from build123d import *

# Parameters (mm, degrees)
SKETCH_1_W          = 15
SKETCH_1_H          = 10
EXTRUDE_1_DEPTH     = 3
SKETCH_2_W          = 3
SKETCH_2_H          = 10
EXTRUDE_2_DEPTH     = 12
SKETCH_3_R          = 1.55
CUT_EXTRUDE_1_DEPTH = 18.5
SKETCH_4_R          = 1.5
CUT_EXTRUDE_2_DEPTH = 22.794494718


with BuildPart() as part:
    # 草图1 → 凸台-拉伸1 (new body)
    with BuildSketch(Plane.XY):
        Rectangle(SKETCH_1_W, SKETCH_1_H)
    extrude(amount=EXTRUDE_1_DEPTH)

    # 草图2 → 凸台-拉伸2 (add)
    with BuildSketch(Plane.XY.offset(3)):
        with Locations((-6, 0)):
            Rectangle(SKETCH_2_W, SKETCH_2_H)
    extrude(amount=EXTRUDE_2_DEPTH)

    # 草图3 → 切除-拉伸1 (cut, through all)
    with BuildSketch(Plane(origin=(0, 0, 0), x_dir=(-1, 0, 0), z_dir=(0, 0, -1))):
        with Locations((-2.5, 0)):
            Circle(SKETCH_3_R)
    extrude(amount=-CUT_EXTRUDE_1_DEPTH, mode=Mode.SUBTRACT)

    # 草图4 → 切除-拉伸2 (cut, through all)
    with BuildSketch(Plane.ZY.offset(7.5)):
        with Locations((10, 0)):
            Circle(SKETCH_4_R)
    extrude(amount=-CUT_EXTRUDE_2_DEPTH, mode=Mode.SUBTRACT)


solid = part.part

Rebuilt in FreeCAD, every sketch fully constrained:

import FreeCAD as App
import Part
import Sketcher

V = App.Vector

doc = App.newDocument("Part")
params = doc.addObject("Spreadsheet::Sheet", "Params")
for row, (alias, value) in enumerate([
    ("sketch1_width", "15 mm"),
    ("sketch1_height", "10 mm"),
    ("pad1_length", "3 mm"),
    ("sketch2_width", "3 mm"),
    ("sketch2_height", "10 mm"),
    ("pad2_length", "12 mm"),
    ("sketch3_diameter", "3.1 mm"),
    ("sketch4_diameter", "3 mm"),
], start=1):
    params.set(f"A{row}", alias)
    params.set(f"B{row}", "=" + value)
    params.setAlias(f"B{row}", alias)

body = doc.addObject("PartDesign::Body", "Body")

sketch1 = body.newObject("Sketcher::SketchObject", "Sketch")
sketch1.AttachmentSupport = (doc.getObject("XY_Plane"), [""])
sketch1.MapMode = "FlatFace"
sketch1.addGeometry([
    Part.LineSegment(V(-7.5, 5, 0), V(-7.5, -5, 0)),
    Part.LineSegment(V(-7.5, -5, 0), V(7.5, -5, 0)),
    Part.LineSegment(V(7.5, -5, 0), V(7.5, 5, 0)),
    Part.LineSegment(V(7.5, 5, 0), V(-7.5, 5, 0)),
], False)
sketch1.addConstraint([
    Sketcher.Constraint("Coincident", 0, 2, 1, 1),
    Sketcher.Constraint("Coincident", 1, 2, 2, 1),
    Sketcher.Constraint("Coincident", 2, 2, 3, 1),
    Sketcher.Constraint("Coincident", 3, 2, 0, 1),
    Sketcher.Constraint("Vertical", 0),
    Sketcher.Constraint("Horizontal", 1),
    Sketcher.Constraint("Vertical", 2),
    Sketcher.Constraint("Horizontal", 3),
    Sketcher.Constraint("Symmetric", 0, 2, 2, 2, -1, 1),
    Sketcher.Constraint("DistanceX", 1, 1, 1, 2, 15.0),
    Sketcher.Constraint("DistanceY", 0, 2, 0, 1, 10.0),
])
sketch1.setExpression("Constraints[9]", "Params.sketch1_width")
sketch1.setExpression("Constraints[10]", "Params.sketch1_height")
pad1 = body.newObject("PartDesign::Pad", "Pad")
pad1.Profile = sketch1
pad1.setExpression("Length", "Params.pad1_length")

sketch2 = body.newObject("Sketcher::SketchObject", "Sketch001")
sketch2.AttachmentSupport = (doc.getObject("XY_Plane"), [""])
sketch2.MapMode = "FlatFace"
sketch2.AttachmentOffset = App.Placement(V(0, 0, 3), App.Rotation())
sketch2.addGeometry([
    Part.LineSegment(V(-7.5, 5, 0), V(-7.5, -5, 0)),
    Part.LineSegment(V(-7.5, -5, 0), V(-4.5, -5, 0)),
    Part.LineSegment(V(-4.5, -5, 0), V(-4.5, 5, 0)),
    Part.LineSegment(V(-4.5, 5, 0), V(-7.5, 5, 0)),
], False)
sketch2.addConstraint([
    Sketcher.Constraint("Coincident", 0, 2, 1, 1),
    Sketcher.Constraint("Coincident", 1, 2, 2, 1),
    Sketcher.Constraint("Coincident", 2, 2, 3, 1),
    Sketcher.Constraint("Coincident", 3, 2, 0, 1),
    Sketcher.Constraint("Vertical", 0),
    Sketcher.Constraint("Horizontal", 1),
    Sketcher.Constraint("Vertical", 2),
    Sketcher.Constraint("Horizontal", 3),
    Sketcher.Constraint("DistanceX", 1, 1, 1, 2, 3.0),
    Sketcher.Constraint("DistanceY", 0, 2, 0, 1, 10.0),
    Sketcher.Constraint("DistanceY", 0, 2, -1, 1, 5.0),
    Sketcher.Constraint("DistanceX", 0, 2, -1, 1, 7.5),
])
sketch2.setExpression("Constraints[8]", "Params.sketch2_width")
sketch2.setExpression("Constraints[9]", "Params.sketch2_height")
pad2 = body.newObject("PartDesign::Pad", "Pad001")
pad2.Profile = sketch2
pad2.setExpression("Length", "Params.pad2_length")

sketch3 = body.newObject("Sketcher::SketchObject", "Sketch002")
sketch3.AttachmentSupport = (doc.getObject("XY_Plane"), [""])
sketch3.MapMode = "FlatFace"
sketch3.addGeometry(Part.Circle(V(2.5, 0, 0), V(0, 0, 1), 1.55), False)
sketch3.addConstraint([
    Sketcher.Constraint("PointOnObject", 0, 3, -1),
    Sketcher.Constraint("Diameter", 0, 3.1),
    Sketcher.Constraint("DistanceX", -1, 1, 0, 3, 2.5),
])
sketch3.setExpression("Constraints[1]", "Params.sketch3_diameter")
pocket1 = body.newObject("PartDesign::Pocket", "Pocket")
pocket1.Profile = sketch3
pocket1.Type = "ThroughAll"
pocket1.Reversed = True

sketch4 = body.newObject("Sketcher::SketchObject", "Sketch003")
sketch4.AttachmentSupport = (doc.getObject("YZ_Plane"), [""])
sketch4.MapMode = "FlatFace"
sketch4.AttachmentOffset = App.Placement(V(0, 0, -7.5), App.Rotation())
sketch4.addGeometry(Part.Circle(V(0, 10, 0), V(0, 0, 1), 1.5), False)
sketch4.addConstraint([
    Sketcher.Constraint("PointOnObject", 0, 3, -2),
    Sketcher.Constraint("Diameter", 0, 3.0),
    Sketcher.Constraint("DistanceY", -1, 1, 0, 3, 10.0),
])
sketch4.setExpression("Constraints[1]", "Params.sketch4_diameter")
pocket2 = body.newObject("PartDesign::Pocket", "Pocket001")
pocket2.Profile = sketch4
pocket2.Type = "ThroughAll"
pocket2.Reversed = True

doc.recompute()
